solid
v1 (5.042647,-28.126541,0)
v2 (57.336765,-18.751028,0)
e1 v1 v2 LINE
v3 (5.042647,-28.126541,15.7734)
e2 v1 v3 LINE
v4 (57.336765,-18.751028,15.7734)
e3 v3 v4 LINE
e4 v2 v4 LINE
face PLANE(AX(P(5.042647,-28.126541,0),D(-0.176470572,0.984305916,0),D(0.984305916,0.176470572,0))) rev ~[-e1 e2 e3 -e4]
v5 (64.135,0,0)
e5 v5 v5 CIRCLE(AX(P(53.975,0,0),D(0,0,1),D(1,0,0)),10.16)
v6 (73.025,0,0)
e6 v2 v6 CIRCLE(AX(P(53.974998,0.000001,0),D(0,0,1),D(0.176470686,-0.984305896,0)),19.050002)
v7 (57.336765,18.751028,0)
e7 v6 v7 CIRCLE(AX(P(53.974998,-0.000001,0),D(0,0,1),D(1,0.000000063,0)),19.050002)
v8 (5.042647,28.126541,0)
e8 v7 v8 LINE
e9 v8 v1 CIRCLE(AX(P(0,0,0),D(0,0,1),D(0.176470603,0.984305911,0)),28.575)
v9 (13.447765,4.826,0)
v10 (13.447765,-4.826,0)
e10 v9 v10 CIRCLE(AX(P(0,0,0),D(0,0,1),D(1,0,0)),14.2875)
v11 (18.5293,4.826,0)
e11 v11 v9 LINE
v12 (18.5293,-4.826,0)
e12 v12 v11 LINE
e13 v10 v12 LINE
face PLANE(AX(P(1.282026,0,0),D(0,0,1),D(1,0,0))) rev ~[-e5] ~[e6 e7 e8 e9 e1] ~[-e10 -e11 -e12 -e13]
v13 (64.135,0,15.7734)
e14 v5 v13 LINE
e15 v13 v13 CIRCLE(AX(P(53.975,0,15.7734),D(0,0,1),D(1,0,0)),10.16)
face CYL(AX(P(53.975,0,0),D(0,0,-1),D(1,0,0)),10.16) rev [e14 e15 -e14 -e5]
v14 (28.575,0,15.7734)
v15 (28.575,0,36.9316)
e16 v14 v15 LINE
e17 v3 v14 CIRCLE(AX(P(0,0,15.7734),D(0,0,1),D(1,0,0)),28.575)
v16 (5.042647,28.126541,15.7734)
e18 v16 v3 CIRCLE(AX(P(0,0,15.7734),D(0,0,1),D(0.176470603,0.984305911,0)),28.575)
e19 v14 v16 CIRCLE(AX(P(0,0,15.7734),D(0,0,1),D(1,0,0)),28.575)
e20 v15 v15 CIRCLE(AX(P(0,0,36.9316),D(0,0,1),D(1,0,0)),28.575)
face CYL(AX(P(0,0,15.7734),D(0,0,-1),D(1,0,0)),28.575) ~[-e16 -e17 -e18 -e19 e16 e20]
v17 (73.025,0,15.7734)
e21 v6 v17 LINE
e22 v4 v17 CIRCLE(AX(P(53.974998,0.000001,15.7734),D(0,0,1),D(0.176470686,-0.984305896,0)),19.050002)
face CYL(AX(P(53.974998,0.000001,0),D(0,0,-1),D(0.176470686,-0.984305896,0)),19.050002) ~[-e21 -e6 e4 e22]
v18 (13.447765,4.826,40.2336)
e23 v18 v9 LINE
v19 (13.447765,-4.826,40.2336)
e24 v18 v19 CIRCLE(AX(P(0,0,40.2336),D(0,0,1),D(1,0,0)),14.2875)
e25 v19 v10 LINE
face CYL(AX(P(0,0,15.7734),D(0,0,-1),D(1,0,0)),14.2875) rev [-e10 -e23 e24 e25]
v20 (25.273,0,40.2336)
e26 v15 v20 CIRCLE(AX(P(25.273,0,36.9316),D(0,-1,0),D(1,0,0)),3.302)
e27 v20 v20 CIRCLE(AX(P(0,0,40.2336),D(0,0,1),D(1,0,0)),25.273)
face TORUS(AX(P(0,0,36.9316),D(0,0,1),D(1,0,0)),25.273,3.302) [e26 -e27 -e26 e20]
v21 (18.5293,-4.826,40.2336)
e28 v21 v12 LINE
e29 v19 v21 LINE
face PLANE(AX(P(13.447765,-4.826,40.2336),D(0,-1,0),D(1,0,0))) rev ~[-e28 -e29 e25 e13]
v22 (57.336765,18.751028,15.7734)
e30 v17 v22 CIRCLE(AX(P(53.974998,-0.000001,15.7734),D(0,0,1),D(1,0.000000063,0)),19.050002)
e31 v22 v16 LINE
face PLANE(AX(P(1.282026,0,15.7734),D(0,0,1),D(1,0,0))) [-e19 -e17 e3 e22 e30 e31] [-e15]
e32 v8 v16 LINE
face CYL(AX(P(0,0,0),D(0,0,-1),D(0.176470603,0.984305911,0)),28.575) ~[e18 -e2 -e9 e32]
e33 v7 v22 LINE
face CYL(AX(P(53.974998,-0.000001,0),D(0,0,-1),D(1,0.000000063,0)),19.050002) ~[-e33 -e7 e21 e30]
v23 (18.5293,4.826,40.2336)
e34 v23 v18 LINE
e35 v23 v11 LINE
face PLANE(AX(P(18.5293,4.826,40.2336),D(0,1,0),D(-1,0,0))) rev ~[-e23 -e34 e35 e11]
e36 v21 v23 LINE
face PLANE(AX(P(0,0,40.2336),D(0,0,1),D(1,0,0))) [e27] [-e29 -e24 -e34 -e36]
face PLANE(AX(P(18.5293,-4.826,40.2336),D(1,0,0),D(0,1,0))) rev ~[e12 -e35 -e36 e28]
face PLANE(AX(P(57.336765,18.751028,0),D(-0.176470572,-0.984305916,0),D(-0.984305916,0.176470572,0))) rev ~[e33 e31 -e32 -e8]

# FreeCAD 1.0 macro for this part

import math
import FreeCAD as App
import Part
import Sketcher
from FreeCAD import Vector
Q = App.Units.Quantity


def edges_at(feature, points):
    """Names of the edges that pass closest to the given points."""
    edges = feature.Shape.Edges
    near = lambda p: min(range(len(edges)), key=lambda i: edges[i].distToShape(Part.Vertex(*p))[0])
    return sorted({f"Edge{near(p) + 1}" for p in points})

doc = App.newDocument("Part")
body = doc.addObject("PartDesign::Body", "Body")

# Sketch on XY plane
sketch1 = body.newObject("Sketcher::SketchObject", "Sketch")
sketch1.AttachmentSupport = (doc.getObject("XY_Plane"), [""])
sketch1.MapMode = "FlatFace"
sketch1.addGeometry(Part.ArcOfCircle(Part.Circle(Vector(0, 0, 0), Vector(0, 0, 1), 28.575), math.radians(79.835751), math.radians(280.164249)), False)
sketch1.addGeometry(Part.LineSegment(Vector(5.042647, -28.126541, 0), Vector(57.336765, -18.751028, 0)), False)
sketch1.addGeometry(Part.ArcOfCircle(Part.Circle(Vector(53.974998, 0.000001, 0), Vector(0, 0, 1), 19.050002), math.radians(-79.835746), math.radians(-0.000004)), False)
sketch1.addGeometry(Part.ArcOfCircle(Part.Circle(Vector(53.974998, -0.000001, 0), Vector(0, 0, 1), 19.050002), math.radians(0.000004), math.radians(79.835746)), False)
sketch1.addGeometry(Part.LineSegment(Vector(57.336765, 18.751028, 0), Vector(5.042647, 28.126541, 0)), False)
sketch1.addGeometry(Part.Circle(Vector(0, 0, 0), Vector(0, 0, 1), 14.2875), False)
sketch1.addGeometry(Part.Circle(Vector(53.975, 0, 0), Vector(0, 0, 1), 10.16), False)
sketch1.addConstraint(Sketcher.Constraint("Tangent", 0, 2, 1, 1))
sketch1.addConstraint(Sketcher.Constraint("Tangent", 1, 2, 2, 1))
sketch1.addConstraint(Sketcher.Constraint("Tangent", 2, 2, 3, 1))
sketch1.addConstraint(Sketcher.Constraint("Tangent", 3, 2, 4, 1))
sketch1.addConstraint(Sketcher.Constraint("Tangent", 4, 2, 0, 1))
sketch1.addConstraint(Sketcher.Constraint("Coincident", 0, 3, -1, 1))
sketch1.addConstraint(Sketcher.Constraint("Coincident", 5, 3, -1, 1))
sketch1.addConstraint(Sketcher.Constraint("Coincident", 6, 3, 2, 3))
sketch1.addConstraint(Sketcher.Constraint("Equal", 2, 3))
sketch1.addConstraint(Sketcher.Constraint("PointOnObject", 2, 3, -1))
sketch1.addConstraint(Sketcher.Constraint("PointOnObject", 2, 2, -1))
sketch1.addConstraint(Sketcher.Constraint("Diameter", 6, Q("0.8 in")))
sketch1.addConstraint(Sketcher.Constraint("Radius", 2, Q("0.7500001 in")))
sketch1.addConstraint(Sketcher.Constraint("Diameter", 5, Q("1.125 in")))
sketch1.addConstraint(Sketcher.Constraint("Radius", 0, Q("1.125 in")))
sketch1.addConstraint(Sketcher.Constraint("DistanceX", -1, 1, 2, 3, Q("2.1249999 in")))
pad1 = body.newObject("PartDesign::Pad", "Pad")
pad1.Profile = sketch1
pad1.Length = Q("0.621 in")

# Sketch on XY plane
sketch2 = body.newObject("Sketcher::SketchObject", "Sketch001")
sketch2.AttachmentSupport = (doc.getObject("XY_Plane"), [""])
sketch2.MapMode = "FlatFace"
sketch2.AttachmentOffset = App.Placement(Vector(0, 0, 0.621 * 25.4), App.Rotation())
sketch2.addGeometry(Part.Circle(Vector(0, 0, 0), Vector(0, 0, 1), 28.575), False)
sketch2.addGeometry(Part.Circle(Vector(0, 0, 0), Vector(0, 0, 1), 14.2875), False)
sketch2.addConstraint(Sketcher.Constraint("Coincident", 0, 3, -1, 1))
sketch2.addConstraint(Sketcher.Constraint("Coincident", 1, 3, -1, 1))
sketch2.addConstraint(Sketcher.Constraint("Diameter", 0, Q("2.25 in")))
sketch2.addConstraint(Sketcher.Constraint("Diameter", 1, Q("1.125 in")))
pad2 = body.newObject("PartDesign::Pad", "Pad001")
pad2.Profile = sketch2
pad2.Length = Q("0.963 in")

# Sketch on XY plane
sketch3 = body.newObject("Sketcher::SketchObject", "Sketch002")
sketch3.AttachmentSupport = (doc.getObject("XY_Plane"), [""])
sketch3.MapMode = "FlatFace"
sketch3.AttachmentOffset = App.Placement(Vector(0, 0, 1.584 * 25.4), App.Rotation())
sketch3.addGeometry(Part.LineSegment(Vector(18.5293, -4.826, 0), Vector(18.5293, 4.826, 0)), False)
sketch3.addGeometry(Part.LineSegment(Vector(18.5293, 4.826, 0), Vector(13.447765, 4.826, 0)), False)
sketch3.addGeometry(Part.ArcOfCircle(Part.Circle(Vector(0.000014, 0.000003, 0), Vector(0, 0, 1), 14.287486), math.radians(-0.000011), math.radians(19.74155)), False)
sketch3.addGeometry(Part.ArcOfCircle(Part.Circle(Vector(0.000014, -0.000003, 0), Vector(0, 0, 1), 14.287486), math.radians(-19.74155), math.radians(0.000011)), False)
sketch3.addGeometry(Part.LineSegment(Vector(13.447765, -4.826, 0), Vector(18.5293, -4.826, 0)), False)
sketch3.addConstraint(Sketcher.Constraint("Coincident", 0, 2, 1, 1))
sketch3.addConstraint(Sketcher.Constraint("Coincident", 1, 2, 2, 2))
sketch3.addConstraint(Sketcher.Constraint("Tangent", 2, 1, 3, 2))
sketch3.addConstraint(Sketcher.Constraint("Coincident", 3, 1, 4, 1))
sketch3.addConstraint(Sketcher.Constraint("Coincident", 4, 2, 0, 1))
sketch3.addConstraint(Sketcher.Constraint("Vertical", 0))
sketch3.addConstraint(Sketcher.Constraint("Horizontal", 1))
sketch3.addConstraint(Sketcher.Constraint("Horizontal", 4))
sketch3.addConstraint(Sketcher.Constraint("Equal", 2, 3))
sketch3.addConstraint(Sketcher.Constraint("Symmetric", 1, 2, 3, 1, -1))
sketch3.addConstraint(Sketcher.Constraint("PointOnObject", 2, 1, -1))
sketch3.addConstraint(Sketcher.Constraint("DistanceY", 0, 1, 0, 2, Q("0.38 in")))
sketch3.addConstraint(Sketcher.Constraint("DistanceX", -1, 1, 2, 1, Q("0.5625 in")))
sketch3.addConstraint(Sketcher.Constraint("DistanceX", 2, 1, 0, 2, Q("0.167 in")))
sketch3.addConstraint(Sketcher.Constraint("Radius", 2, 14.287486))
pocket1 = body.newObject("PartDesign::Pocket", "Pocket")
pocket1.Profile = sketch3
pocket1.Type = "ThroughAll"
doc.recompute()

fillet = body.newObject("PartDesign::Fillet", "Fillet")
fillet.Base = (pocket1, edges_at(pocket1, [(-28.575, 0, 40.234)]))
fillet.Radius = Q("0.13 in")

doc.recompute()
